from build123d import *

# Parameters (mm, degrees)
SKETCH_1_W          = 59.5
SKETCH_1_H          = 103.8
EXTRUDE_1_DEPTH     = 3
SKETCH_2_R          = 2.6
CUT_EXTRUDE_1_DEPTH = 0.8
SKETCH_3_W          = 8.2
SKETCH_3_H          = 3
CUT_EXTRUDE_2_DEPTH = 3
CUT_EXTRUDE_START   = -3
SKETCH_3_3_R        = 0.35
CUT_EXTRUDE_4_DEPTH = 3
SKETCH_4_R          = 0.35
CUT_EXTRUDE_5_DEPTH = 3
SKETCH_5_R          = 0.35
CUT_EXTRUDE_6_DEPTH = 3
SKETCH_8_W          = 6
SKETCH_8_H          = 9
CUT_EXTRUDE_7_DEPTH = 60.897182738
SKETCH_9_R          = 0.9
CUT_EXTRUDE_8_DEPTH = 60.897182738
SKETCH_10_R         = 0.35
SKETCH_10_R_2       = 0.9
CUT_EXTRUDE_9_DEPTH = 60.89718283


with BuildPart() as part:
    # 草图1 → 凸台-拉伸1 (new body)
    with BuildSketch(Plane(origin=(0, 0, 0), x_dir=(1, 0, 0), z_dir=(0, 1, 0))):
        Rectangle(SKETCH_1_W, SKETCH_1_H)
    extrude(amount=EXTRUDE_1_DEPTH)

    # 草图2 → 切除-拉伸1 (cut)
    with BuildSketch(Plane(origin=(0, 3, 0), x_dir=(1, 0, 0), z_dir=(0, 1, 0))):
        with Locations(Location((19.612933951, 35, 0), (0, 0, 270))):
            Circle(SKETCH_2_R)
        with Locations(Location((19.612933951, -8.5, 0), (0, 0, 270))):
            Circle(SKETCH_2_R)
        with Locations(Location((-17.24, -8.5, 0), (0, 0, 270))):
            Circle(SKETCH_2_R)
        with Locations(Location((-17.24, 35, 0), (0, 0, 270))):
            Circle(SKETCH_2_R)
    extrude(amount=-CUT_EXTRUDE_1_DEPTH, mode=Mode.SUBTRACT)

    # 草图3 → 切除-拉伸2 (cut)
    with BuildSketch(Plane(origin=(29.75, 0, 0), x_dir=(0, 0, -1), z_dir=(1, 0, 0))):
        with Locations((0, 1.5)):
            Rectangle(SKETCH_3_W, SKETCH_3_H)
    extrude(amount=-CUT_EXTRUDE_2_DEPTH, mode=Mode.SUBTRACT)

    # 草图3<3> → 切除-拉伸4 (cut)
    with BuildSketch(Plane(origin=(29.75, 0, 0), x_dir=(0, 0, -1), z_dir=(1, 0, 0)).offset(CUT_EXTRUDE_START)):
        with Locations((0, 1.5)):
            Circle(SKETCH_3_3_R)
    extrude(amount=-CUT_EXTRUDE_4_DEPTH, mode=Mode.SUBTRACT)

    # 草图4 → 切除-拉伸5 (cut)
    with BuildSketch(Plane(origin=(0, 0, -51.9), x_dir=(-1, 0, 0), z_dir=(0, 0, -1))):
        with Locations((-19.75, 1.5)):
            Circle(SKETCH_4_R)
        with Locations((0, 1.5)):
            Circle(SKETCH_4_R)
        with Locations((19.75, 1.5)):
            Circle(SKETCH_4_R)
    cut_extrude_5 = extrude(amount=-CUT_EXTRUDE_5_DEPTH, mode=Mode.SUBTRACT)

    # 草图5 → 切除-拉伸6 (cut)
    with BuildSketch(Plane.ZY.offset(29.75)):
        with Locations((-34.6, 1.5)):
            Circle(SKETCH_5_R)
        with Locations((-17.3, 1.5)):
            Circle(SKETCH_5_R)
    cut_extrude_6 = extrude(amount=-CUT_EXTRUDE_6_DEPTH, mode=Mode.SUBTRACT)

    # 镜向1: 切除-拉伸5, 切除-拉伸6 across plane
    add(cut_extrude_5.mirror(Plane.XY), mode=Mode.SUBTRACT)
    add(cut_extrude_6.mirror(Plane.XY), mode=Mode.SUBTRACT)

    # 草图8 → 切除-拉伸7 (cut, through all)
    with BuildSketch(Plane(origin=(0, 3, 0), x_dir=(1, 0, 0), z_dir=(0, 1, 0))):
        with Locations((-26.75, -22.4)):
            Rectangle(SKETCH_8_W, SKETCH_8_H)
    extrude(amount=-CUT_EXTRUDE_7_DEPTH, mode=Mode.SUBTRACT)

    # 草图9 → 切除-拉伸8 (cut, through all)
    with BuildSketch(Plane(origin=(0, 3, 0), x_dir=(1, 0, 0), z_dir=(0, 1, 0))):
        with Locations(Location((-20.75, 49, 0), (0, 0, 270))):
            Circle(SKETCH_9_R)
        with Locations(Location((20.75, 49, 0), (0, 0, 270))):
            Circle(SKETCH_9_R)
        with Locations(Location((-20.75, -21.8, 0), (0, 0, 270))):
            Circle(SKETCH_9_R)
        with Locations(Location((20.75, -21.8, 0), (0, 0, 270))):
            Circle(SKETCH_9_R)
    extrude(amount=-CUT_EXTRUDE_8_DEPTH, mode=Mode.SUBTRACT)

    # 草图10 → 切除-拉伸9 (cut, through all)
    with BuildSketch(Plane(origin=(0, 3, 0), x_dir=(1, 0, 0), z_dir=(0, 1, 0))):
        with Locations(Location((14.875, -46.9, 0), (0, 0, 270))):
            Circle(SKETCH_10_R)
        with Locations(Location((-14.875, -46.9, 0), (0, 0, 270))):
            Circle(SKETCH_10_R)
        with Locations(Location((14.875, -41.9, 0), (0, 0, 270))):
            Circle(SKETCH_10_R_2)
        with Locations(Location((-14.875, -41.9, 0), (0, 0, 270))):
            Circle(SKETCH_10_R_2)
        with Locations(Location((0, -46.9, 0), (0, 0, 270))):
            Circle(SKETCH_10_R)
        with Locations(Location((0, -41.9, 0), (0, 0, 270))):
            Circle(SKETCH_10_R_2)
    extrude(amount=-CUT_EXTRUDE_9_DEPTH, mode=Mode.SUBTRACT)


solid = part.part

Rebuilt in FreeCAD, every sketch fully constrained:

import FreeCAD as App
import Part
import Sketcher


def add_polygon(sketch, points):
    """Adds a closed chain of lines whose ends are joined by coincident constraints."""
    first, n = sketch.GeometryCount, len(points)
    for a, b in zip(points, points[1:] + points[:1]):
        sketch.addGeometry(Part.LineSegment(App.Vector(*a, 0), App.Vector(*b, 0)), False)
    for i in range(n):
        sketch.addConstraint(Sketcher.Constraint("Coincident", first + i, 2, first + (i + 1) % n, 1))

doc = App.newDocument("Part")
body = doc.addObject("PartDesign::Body", "Body")

sketch1 = doc.addObject("Sketcher::SketchObject", "Sketch")
body.addObject(sketch1)
sketch1.AttachmentSupport = (doc.XZ_Plane, [""])
sketch1.MapMode = "FlatFace"
add_polygon(sketch1, [(-30, -52), (-30, 52), (30, 52), (30, -52)])
sketch1.addConstraint([
    Sketcher.Constraint("Vertical", 0),
    Sketcher.Constraint("Horizontal", 1),
    Sketcher.Constraint("Vertical", 2),
    Sketcher.Constraint("Horizontal", 3),
    Sketcher.Constraint("Symmetric", 0, 2, 2, 2, -1, 1),
    Sketcher.Constraint("DistanceX", 1, 1, 1, 2, 59.5),
    Sketcher.Constraint("DistanceY", 0, 1, 0, 2, 103.8),
])
pad1 = doc.addObject("PartDesign::Pad", "Pad")
body.addObject(pad1)
pad1.Profile = sketch1
pad1.Length = 3
pad1.Reversed = True

sketch2 = doc.addObject("Sketcher::SketchObject", "Sketch001")
body.addObject(sketch2)
sketch2.AttachmentSupport = (doc.XZ_Plane, [""])
sketch2.MapMode = "FlatFace"
sketch2.AttachmentOffset = App.Placement(App.Vector(0, 0, -3), App.Rotation())
sketch2.addGeometry([
    Part.Circle(App.Vector(19.6, -35, 0), App.Vector(0, 0, 1), 2.6),
    Part.Circle(App.Vector(19.6, 8.5, 0), App.Vector(0, 0, 1), 2.6),
    Part.Circle(App.Vector(-17.2, 8.5, 0), App.Vector(0, 0, 1), 2.6),
    Part.Circle(App.Vector(-17.2, -35, 0), App.Vector(0, 0, 1), 2.6),
], False)
sketch2.addConstraint([
    Sketcher.Constraint("Equal", 0, 1),
    Sketcher.Constraint("Equal", 1, 2),
    Sketcher.Constraint("Equal", 2, 3),
    Sketcher.Constraint("Horizontal", 1, 3, 2, 3),
    Sketcher.Constraint("Horizontal", 0, 3, 3, 3),
    Sketcher.Constraint("Vertical", 0, 3, 1, 3),
    Sketcher.Constraint("Vertical", 2, 3, 3, 3),
    Sketcher.Constraint("Diameter", 0, 5.2),
    Sketcher.Constraint("DistanceY", 0, 3, -1, 1, 35.0),
    Sketcher.Constraint("DistanceY", -1, 1, 1, 3, 8.5),
    Sketcher.Constraint("DistanceX", 2, 3, -1, 1, 17.24),
    Sketcher.Constraint("DistanceX", -1, 1, 0, 3, 19.612934),
])
pocket1 = doc.addObject("PartDesign::Pocket", "Pocket")
body.addObject(pocket1)
pocket1.Profile = sketch2
pocket1.Length = 0.8
pocket1.Reversed = True

sketch3 = doc.addObject("Sketcher::SketchObject", "Sketch002")
body.addObject(sketch3)
sketch3.AttachmentSupport = (doc.YZ_Plane, [""])
sketch3.MapMode = "FlatFace"
sketch3.AttachmentOffset = App.Placement(App.Vector(0, 0, 29.75), App.Rotation())
add_polygon(sketch3, [(3, 4.1), (0, 4.1), (0, -4.1), (3, -4.1)])
sketch3.addConstraint([
    Sketcher.Constraint("Horizontal", 0),
    Sketcher.Constraint("Vertical", 1),
    Sketcher.Constraint("Horizontal", 2),
    Sketcher.Constraint("Vertical", 3),
    Sketcher.Constraint("Symmetric", 0, 2, 1, 2, -1, 1),
    Sketcher.Constraint("DistanceX", 0, 2, 0, 1, 3.0),
    Sketcher.Constraint("DistanceY", 1, 2, 1, 1, 8.2),
])
pocket2 = doc.addObject("PartDesign::Pocket", "Pocket001")
body.addObject(pocket2)
pocket2.Profile = sketch3
pocket2.Length = 3

sketch4 = doc.addObject("Sketcher::SketchObject", "Sketch003")
body.addObject(sketch4)
sketch4.AttachmentSupport = (doc.YZ_Plane, [""])
sketch4.MapMode = "FlatFace"
sketch4.AttachmentOffset = App.Placement(App.Vector(0, 0, 26.75), App.Rotation())
sketch4.addGeometry(Part.Circle(App.Vector(1.5, 0, 0), App.Vector(0, 0, 1), 0.35), False)
sketch4.addConstraint([
    Sketcher.Constraint("PointOnObject", 0, 3, -1),
    Sketcher.Constraint("Diameter", 0, 0.7),
    Sketcher.Constraint("DistanceX", -1, 1, 0, 3, 1.5),
])
pocket3 = doc.addObject("PartDesign::Pocket", "Pocket002")
body.addObject(pocket3)
pocket3.Profile = sketch4
pocket3.Length = 3

sketch5 = doc.addObject("Sketcher::SketchObject", "Sketch004")
body.addObject(sketch5)
sketch5.AttachmentSupport = (doc.XY_Plane, [""])
sketch5.MapMode = "FlatFace"
sketch5.AttachmentOffset = App.Placement(App.Vector(0, 0, -51.9), App.Rotation())
sketch5.addGeometry([
    Part.Circle(App.Vector(19.75, 1.5, 0), App.Vector(0, 0, 1), 0.35),
    Part.Circle(App.Vector(0, 1.5, 0), App.Vector(0, 0, 1), 0.35),
    Part.Circle(App.Vector(-19.75, 1.5, 0), App.Vector(0, 0, 1), 0.35),
], False)
sketch5.addConstraint([
    Sketcher.Constraint("Equal", 0, 1),
    Sketcher.Constraint("Equal", 1, 2),
    Sketcher.Constraint("Symmetric", 0, 3, 2, 3, -2),
    Sketcher.Constraint("PointOnObject", 1, 3, -2),
    Sketcher.Constraint("Horizontal", 0, 3, 1, 3),
    Sketcher.Constraint("Diameter", 0, 0.7),
    Sketcher.Constraint("DistanceY", -1, 1, 0, 3, 1.5),
    Sketcher.Constraint("DistanceX", 2, 3, 0, 3, 39.5),
])
pocket4 = doc.addObject("PartDesign::Pocket", "Pocket003")
body.addObject(pocket4)
pocket4.Profile = sketch5
pocket4.Length = 3
pocket4.Reversed = True

sketch6 = doc.addObject("Sketcher::SketchObject", "Sketch005")
body.addObject(sketch6)
sketch6.AttachmentSupport = (doc.YZ_Plane, [""])
sketch6.MapMode = "FlatFace"
sketch6.AttachmentOffset = App.Placement(App.Vector(0, 0, -29.75), App.Rotation())
sketch6.addGeometry([
    Part.Circle(App.Vector(1.5, -34.6, 0), App.Vector(0, 0, 1), 0.35),
    Part.Circle(App.Vector(1.5, -17.3, 0), App.Vector(0, 0, 1), 0.35),
], False)
sketch6.addConstraint([
    Sketcher.Constraint("Equal", 0, 1),
    Sketcher.Constraint("Vertical", 0, 3, 1, 3),
    Sketcher.Constraint("Diameter", 0, 0.7),
    Sketcher.Constraint("DistanceX", -1, 1, 0, 3, 1.5),
    Sketcher.Constraint("DistanceY", 0, 3, -1, 1, 34.6),
    Sketcher.Constraint("DistanceY", 1, 3, -1, 1, 17.3),
])
pocket5 = doc.addObject("PartDesign::Pocket", "Pocket004")
body.addObject(pocket5)
pocket5.Profile = sketch6
pocket5.Length = 3
pocket5.Reversed = True
doc.recompute()

mirrored = doc.addObject("PartDesign::Mirrored", "Mirrored")
body.addObject(mirrored)
mirrored.Originals = [pocket4, pocket5]
mirrored.MirrorPlane = (doc.XY_Plane, [""])
body.Tip = mirrored

sketch7 = doc.addObject("Sketcher::SketchObject", "Sketch006")
body.addObject(sketch7)
sketch7.AttachmentSupport = (doc.XZ_Plane, [""])
sketch7.MapMode = "FlatFace"
sketch7.AttachmentOffset = App.Placement(App.Vector(0, 0, -3), App.Rotation())
add_polygon(sketch7, [(-30, 18), (-30, 27), (-24, 27), (-24, 18)])
sketch7.addConstraint([
    Sketcher.Constraint("Vertical", 0),
    Sketcher.Constraint("Horizontal", 1),
    Sketcher.Constraint("Vertical", 2),
    Sketcher.Constraint("Horizontal", 3),
    Sketcher.Constraint("DistanceX", 1, 1, 1, 2, 6.0),
    Sketcher.Constraint("DistanceY", 0, 1, 0, 2, 9.0),
    Sketcher.Constraint("DistanceY", -1, 1, 0, 2, 26.9),
    Sketcher.Constraint("DistanceX", 0, 2, -1, 1, 29.75),
])
pocket6 = doc.addObject("PartDesign::Pocket", "Pocket005")
body.addObject(pocket6)
pocket6.Profile = sketch7
pocket6.Type = "ThroughAll"
pocket6.Reversed = True

sketch8 = doc.addObject("Sketcher::SketchObject", "Sketch007")
body.addObject(sketch8)
sketch8.AttachmentSupport = (doc.XZ_Plane, [""])
sketch8.MapMode = "FlatFace"
sketch8.AttachmentOffset = App.Placement(App.Vector(0, 0, -3), App.Rotation())
sketch8.addGeometry([
    Part.Circle(App.Vector(-20.8, -49, 0), App.Vector(0, 0, 1), 0.9),
    Part.Circle(App.Vector(20.8, -49, 0), App.Vector(0, 0, 1), 0.9),
    Part.Circle(App.Vector(-20.8, 21.8, 0), App.Vector(0, 0, 1), 0.9),
    Part.Circle(App.Vector(20.8, 21.8, 0), App.Vector(0, 0, 1), 0.9),
], False)
sketch8.addConstraint([
    Sketcher.Constraint("Equal", 0, 1),
    Sketcher.Constraint("Equal", 1, 2),
    Sketcher.Constraint("Equal", 2, 3),
    Sketcher.Constraint("Symmetric", 0, 3, 1, 3, -2),
    Sketcher.Constraint("Symmetric", 2, 3, 3, 3, -2),
    Sketcher.Constraint("Vertical", 0, 3, 2, 3),
    Sketcher.Constraint("Diameter", 0, 1.8),
    Sketcher.Constraint("DistanceY", 0, 3, -1, 1, 49.0),
    Sketcher.Constraint("DistanceY", -1, 1, 2, 3, 21.8),
    Sketcher.Constraint("DistanceX", 0, 3, 1, 3, 41.5),
])
pocket7 = doc.addObject("PartDesign::Pocket", "Pocket006")
body.addObject(pocket7)
pocket7.Profile = sketch8
pocket7.Type = "ThroughAll"
pocket7.Reversed = True

sketch9 = doc.addObject("Sketcher::SketchObject", "Sketch008")
body.addObject(sketch9)
sketch9.AttachmentSupport = (doc.XZ_Plane, [""])
sketch9.MapMode = "FlatFace"
sketch9.AttachmentOffset = App.Placement(App.Vector(0, 0, -3), App.Rotation())
sketch9.addGeometry([
    Part.Circle(App.Vector(14.88, 46.9, 0), App.Vector(0, 0, 1), 0.35),
    Part.Circle(App.Vector(-14.88, 46.9, 0), App.Vector(0, 0, 1), 0.35),
    Part.Circle(App.Vector(14.88, 41.9, 0), App.Vector(0, 0, 1), 0.9),
    Part.Circle(App.Vector(-14.88, 41.9, 0), App.Vector(0, 0, 1), 0.9),
    Part.Circle(App.Vector(0, 46.9, 0), App.Vector(0, 0, 1), 0.35),
    Part.Circle(App.Vector(0, 41.9, 0), App.Vector(0, 0, 1), 0.9),
], False)
sketch9.addConstraint([
    Sketcher.Constraint("Equal", 0, 1),
    Sketcher.Constraint("Equal", 2, 3),
    Sketcher.Constraint("Equal", 1, 4),
    Sketcher.Constraint("Equal", 3, 5),
    Sketcher.Constraint("Symmetric", 0, 3, 1, 3, -2),
    Sketcher.Constraint("Symmetric", 2, 3, 3, 3, -2),
    Sketcher.Constraint("PointOnObject", 4, 3, -2),
    Sketcher.Constraint("PointOnObject", 5, 3, -2),
    Sketcher.Constraint("Horizontal", 1, 3, 4, 3),
    Sketcher.Constraint("Horizontal", 3, 3, 5, 3),
    Sketcher.Constraint("Vertical", 0, 3, 2, 3),
    Sketcher.Constraint("Diameter", 0, 0.7),
    Sketcher.Constraint("Diameter", 2, 1.8),
    Sketcher.Constraint("DistanceY", 2, 3, 0, 3, 5.0),
    Sketcher.Constraint("DistanceY", -1, 1, 0, 3, 46.9),
    Sketcher.Constraint("DistanceX", 1, 3, 0, 3, 29.75),
])
pocket8 = doc.addObject("PartDesign::Pocket", "Pocket007")
body.addObject(pocket8)
pocket8.Profile = sketch9
pocket8.Type = "ThroughAll"
pocket8.Reversed = True

doc.recompute()
